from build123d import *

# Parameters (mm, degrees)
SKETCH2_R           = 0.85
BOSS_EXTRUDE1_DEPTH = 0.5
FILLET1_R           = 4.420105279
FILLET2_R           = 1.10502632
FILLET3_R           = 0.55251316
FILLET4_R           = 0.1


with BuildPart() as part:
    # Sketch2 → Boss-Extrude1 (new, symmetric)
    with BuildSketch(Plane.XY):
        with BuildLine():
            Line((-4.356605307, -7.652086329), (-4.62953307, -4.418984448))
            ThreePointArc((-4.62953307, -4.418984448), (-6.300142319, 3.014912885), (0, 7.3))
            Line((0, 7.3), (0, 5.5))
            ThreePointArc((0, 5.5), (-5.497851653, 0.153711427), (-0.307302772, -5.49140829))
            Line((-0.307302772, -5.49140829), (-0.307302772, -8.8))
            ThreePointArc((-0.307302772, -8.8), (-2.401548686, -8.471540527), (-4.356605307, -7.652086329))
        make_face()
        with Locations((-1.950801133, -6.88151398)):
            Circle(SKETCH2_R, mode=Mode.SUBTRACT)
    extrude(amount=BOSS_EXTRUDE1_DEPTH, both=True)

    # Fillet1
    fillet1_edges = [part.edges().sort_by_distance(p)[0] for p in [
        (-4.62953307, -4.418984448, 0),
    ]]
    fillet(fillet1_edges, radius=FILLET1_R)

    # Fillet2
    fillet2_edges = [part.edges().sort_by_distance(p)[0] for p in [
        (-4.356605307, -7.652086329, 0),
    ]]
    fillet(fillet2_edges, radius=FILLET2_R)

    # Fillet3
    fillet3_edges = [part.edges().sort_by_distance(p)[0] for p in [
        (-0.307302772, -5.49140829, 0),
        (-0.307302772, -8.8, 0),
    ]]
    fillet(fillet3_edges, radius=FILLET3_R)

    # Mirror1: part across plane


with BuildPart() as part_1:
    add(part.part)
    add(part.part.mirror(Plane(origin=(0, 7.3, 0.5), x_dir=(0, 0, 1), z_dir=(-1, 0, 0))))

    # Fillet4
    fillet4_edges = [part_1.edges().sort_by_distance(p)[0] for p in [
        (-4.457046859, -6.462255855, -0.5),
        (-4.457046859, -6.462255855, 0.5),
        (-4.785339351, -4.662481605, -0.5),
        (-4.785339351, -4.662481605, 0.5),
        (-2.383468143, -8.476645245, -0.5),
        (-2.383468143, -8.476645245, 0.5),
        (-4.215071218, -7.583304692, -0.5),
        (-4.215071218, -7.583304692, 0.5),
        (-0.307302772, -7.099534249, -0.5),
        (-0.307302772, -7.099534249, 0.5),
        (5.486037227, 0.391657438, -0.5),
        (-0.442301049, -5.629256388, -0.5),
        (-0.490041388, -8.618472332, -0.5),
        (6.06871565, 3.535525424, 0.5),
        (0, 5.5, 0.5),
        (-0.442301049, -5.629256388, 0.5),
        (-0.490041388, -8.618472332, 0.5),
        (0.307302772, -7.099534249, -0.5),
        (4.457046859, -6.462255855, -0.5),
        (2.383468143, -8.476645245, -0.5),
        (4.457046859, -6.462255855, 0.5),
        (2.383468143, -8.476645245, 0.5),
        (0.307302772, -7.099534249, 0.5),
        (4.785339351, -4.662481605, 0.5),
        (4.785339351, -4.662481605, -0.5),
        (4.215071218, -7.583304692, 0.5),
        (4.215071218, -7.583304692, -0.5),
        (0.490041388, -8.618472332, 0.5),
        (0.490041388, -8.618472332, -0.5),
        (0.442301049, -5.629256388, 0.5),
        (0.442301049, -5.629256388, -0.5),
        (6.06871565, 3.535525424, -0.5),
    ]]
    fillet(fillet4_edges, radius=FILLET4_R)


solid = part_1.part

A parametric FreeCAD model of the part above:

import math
import FreeCAD as App
import Part
import Sketcher
from FreeCAD import Vector


def edges_at(feature, points):
    """Names of the edges that pass closest to the given points."""
    edges = feature.Shape.Edges
    near = lambda p: min(range(len(edges)), key=lambda i: edges[i].distToShape(Part.Vertex(*p))[0])
    return sorted({f"Edge{near(p) + 1}" for p in points})

doc = App.newDocument("Part")
body = doc.addObject("PartDesign::Body", "Body")

# Sketch on XY plane
sketch1 = doc.addObject("Sketcher::SketchObject", "Sketch")
body.addObject(sketch1)
sketch1.AttachmentSupport = (doc.XY_Plane, [""])
sketch1.MapMode = "FlatFace"
sketch1.addGeometry([
    Part.LineSegment(Vector(-4.629533, -4.418984, 0), Vector(-4.356605, -7.652086, 0)),  # 0
    Part.ArcOfCircle(Part.Circle(Vector(0, 0, 0), Vector(0, 0, 1), 8.805364), math.radians(-119.654401), math.radians(-92)),  # 1
    Part.LineSegment(Vector(-0.307303, -8.8, 0), Vector(-0.307303, -5.491408, 0)),  # 2
    Part.ArcOfCircle(Part.Circle(Vector(0, 0, 0), Vector(0, 0, 1), 5.5), math.radians(90), math.radians(266.797032)),  # 3
    Part.LineSegment(Vector(0, 5.5, 0), Vector(0, 7.3, 0)),  # 4
    Part.ArcOfCircle(Part.Circle(Vector(0, 0.526069, 0), Vector(0, 0, 1), 6.773931), math.radians(90), math.radians(226.887442)),  # 5
    Part.Circle(Vector(-1.950801, -6.881514, 0), Vector(0, 0, 1), 0.85),  # 6
], False)
sketch1.addConstraint([
    Sketcher.Constraint("Coincident", 0, 2, 1, 1),
    Sketcher.Constraint("Coincident", 1, 2, 2, 1),
    Sketcher.Constraint("Coincident", 2, 2, 3, 2),
    Sketcher.Constraint("Coincident", 3, 1, 4, 1),
    Sketcher.Constraint("Coincident", 4, 2, 5, 1),
    Sketcher.Constraint("Coincident", 5, 2, 0, 1),
    Sketcher.Constraint("Vertical", 2),
    Sketcher.Constraint("Vertical", 4),
    Sketcher.Constraint("Coincident", 1, 3, -1, 1),
    Sketcher.Constraint("Coincident", 3, 3, -1, 1),
    Sketcher.Constraint("PointOnObject", 5, 3, -2),
    Sketcher.Constraint("PointOnObject", 3, 1, -2),
    Sketcher.Constraint("Diameter", 6, 1.7),
    Sketcher.Constraint("Radius", 3, 5.5),
    Sketcher.Constraint("DistanceY", 4, 1, 4, 2, 1.8),
    Sketcher.Constraint("DistanceY", 1, 2, -1, 1, 8.8),
    Sketcher.Constraint("Radius", 5, 6.773931),
    Sketcher.Constraint("Radius", 1, 8.805364),
    Sketcher.Constraint("Distance", 0, 3.244601),
    Sketcher.Constraint("DistanceX", 6, 3, -1, 1, 1.950801),
    Sketcher.Constraint("DistanceY", 0, 2, 5, 2, 3.233102),
    Sketcher.Constraint("DistanceY", 6, 3, 5, 2, 2.46253),
])
pad1 = doc.addObject("PartDesign::Pad", "Pad")
body.addObject(pad1)
pad1.Profile = sketch1
pad1.Length = 1
pad1.Midplane = True
doc.recompute()

fillet = doc.addObject("PartDesign::Fillet", "Fillet")
body.addObject(fillet)
fillet.Base = (pad1, edges_at(pad1, [(-4.63, -4.419, 0)]))
fillet.Radius = 4.420105
doc.recompute()

fillet2 = doc.addObject("PartDesign::Fillet", "Fillet001")
body.addObject(fillet2)
fillet2.Base = (fillet, edges_at(fillet, [(-4.357, -7.652, 0)]))
fillet2.Radius = 1.105026
doc.recompute()

fillet3 = doc.addObject("PartDesign::Fillet", "Fillet002")
body.addObject(fillet3)
fillet3.Base = (fillet2, edges_at(fillet2, [(-0.307, -5.491, 0), (-0.307, -8.8, 0)]))
fillet3.Radius = 0.552513
body2 = doc.addObject("PartDesign::Body", "Body001")
doc.recompute()

body2.BaseFeature = body
doc.recompute()

mirroring = doc.addObject("Part::Mirroring", "Mirroring")
mirroring.Source = body
mirroring.Base = Vector(0, 7.3, 0.5)
mirroring.Normal = Vector(-1, 0, 0)
body3 = doc.addObject("PartDesign::Body", "Body002")
body3.BaseFeature = mirroring
boolean = doc.addObject("PartDesign::Boolean", "Boolean")
body2.addObject(boolean)
boolean.Type = "Fuse"
boolean.addObjects([body3])
doc.recompute()

fillet4 = doc.addObject("PartDesign::Fillet", "Fillet003")
body2.addObject(fillet4)
fillet4.Base = (boolean, edges_at(boolean, [
    (-4.457, -6.462, -0.5),
    (-4.457, -6.462, 0.5),
    (-4.785, -4.662, -0.5),
    (-4.785, -4.662, 0.5),
    (-2.383, -8.477, -0.5),
    (-2.383, -8.477, 0.5),
    (-4.215, -7.583, -0.5),
    (-4.215, -7.583, 0.5),
    (-0.307, -7.1, -0.5),
    (-0.307, -7.1, 0.5),
    (5.486, 0.392, -0.5),
    (-0.442, -5.629, -0.5),
    (-0.49, -8.618, -0.5),
    (6.069, 3.536, 0.5),
    (0, 5.5, 0),
    (-0.442, -5.629, 0.5),
    (-0.49, -8.618, 0.5),
    (0.307, -7.1, -0.5),
    (4.457, -6.462, -0.5),
    (2.383, -8.477, -0.5),
    (4.457, -6.462, 0.5),
    (2.383, -8.477, 0.5),
    (0.307, -7.1, 0.5),
    (4.785, -4.662, 0.5),
    (4.785, -4.662, -0.5),
    (4.215, -7.583, 0.5),
    (4.215, -7.583, -0.5),
    (0.49, -8.618, 0.5),
    (0.49, -8.618, -0.5),
    (0.442, -5.629, 0.5),
    (0.442, -5.629, -0.5),
    (6.069, 3.536, -0.5),
]))
fillet4.Radius = 0.1
mirroring.Visibility = False

doc.recompute()
